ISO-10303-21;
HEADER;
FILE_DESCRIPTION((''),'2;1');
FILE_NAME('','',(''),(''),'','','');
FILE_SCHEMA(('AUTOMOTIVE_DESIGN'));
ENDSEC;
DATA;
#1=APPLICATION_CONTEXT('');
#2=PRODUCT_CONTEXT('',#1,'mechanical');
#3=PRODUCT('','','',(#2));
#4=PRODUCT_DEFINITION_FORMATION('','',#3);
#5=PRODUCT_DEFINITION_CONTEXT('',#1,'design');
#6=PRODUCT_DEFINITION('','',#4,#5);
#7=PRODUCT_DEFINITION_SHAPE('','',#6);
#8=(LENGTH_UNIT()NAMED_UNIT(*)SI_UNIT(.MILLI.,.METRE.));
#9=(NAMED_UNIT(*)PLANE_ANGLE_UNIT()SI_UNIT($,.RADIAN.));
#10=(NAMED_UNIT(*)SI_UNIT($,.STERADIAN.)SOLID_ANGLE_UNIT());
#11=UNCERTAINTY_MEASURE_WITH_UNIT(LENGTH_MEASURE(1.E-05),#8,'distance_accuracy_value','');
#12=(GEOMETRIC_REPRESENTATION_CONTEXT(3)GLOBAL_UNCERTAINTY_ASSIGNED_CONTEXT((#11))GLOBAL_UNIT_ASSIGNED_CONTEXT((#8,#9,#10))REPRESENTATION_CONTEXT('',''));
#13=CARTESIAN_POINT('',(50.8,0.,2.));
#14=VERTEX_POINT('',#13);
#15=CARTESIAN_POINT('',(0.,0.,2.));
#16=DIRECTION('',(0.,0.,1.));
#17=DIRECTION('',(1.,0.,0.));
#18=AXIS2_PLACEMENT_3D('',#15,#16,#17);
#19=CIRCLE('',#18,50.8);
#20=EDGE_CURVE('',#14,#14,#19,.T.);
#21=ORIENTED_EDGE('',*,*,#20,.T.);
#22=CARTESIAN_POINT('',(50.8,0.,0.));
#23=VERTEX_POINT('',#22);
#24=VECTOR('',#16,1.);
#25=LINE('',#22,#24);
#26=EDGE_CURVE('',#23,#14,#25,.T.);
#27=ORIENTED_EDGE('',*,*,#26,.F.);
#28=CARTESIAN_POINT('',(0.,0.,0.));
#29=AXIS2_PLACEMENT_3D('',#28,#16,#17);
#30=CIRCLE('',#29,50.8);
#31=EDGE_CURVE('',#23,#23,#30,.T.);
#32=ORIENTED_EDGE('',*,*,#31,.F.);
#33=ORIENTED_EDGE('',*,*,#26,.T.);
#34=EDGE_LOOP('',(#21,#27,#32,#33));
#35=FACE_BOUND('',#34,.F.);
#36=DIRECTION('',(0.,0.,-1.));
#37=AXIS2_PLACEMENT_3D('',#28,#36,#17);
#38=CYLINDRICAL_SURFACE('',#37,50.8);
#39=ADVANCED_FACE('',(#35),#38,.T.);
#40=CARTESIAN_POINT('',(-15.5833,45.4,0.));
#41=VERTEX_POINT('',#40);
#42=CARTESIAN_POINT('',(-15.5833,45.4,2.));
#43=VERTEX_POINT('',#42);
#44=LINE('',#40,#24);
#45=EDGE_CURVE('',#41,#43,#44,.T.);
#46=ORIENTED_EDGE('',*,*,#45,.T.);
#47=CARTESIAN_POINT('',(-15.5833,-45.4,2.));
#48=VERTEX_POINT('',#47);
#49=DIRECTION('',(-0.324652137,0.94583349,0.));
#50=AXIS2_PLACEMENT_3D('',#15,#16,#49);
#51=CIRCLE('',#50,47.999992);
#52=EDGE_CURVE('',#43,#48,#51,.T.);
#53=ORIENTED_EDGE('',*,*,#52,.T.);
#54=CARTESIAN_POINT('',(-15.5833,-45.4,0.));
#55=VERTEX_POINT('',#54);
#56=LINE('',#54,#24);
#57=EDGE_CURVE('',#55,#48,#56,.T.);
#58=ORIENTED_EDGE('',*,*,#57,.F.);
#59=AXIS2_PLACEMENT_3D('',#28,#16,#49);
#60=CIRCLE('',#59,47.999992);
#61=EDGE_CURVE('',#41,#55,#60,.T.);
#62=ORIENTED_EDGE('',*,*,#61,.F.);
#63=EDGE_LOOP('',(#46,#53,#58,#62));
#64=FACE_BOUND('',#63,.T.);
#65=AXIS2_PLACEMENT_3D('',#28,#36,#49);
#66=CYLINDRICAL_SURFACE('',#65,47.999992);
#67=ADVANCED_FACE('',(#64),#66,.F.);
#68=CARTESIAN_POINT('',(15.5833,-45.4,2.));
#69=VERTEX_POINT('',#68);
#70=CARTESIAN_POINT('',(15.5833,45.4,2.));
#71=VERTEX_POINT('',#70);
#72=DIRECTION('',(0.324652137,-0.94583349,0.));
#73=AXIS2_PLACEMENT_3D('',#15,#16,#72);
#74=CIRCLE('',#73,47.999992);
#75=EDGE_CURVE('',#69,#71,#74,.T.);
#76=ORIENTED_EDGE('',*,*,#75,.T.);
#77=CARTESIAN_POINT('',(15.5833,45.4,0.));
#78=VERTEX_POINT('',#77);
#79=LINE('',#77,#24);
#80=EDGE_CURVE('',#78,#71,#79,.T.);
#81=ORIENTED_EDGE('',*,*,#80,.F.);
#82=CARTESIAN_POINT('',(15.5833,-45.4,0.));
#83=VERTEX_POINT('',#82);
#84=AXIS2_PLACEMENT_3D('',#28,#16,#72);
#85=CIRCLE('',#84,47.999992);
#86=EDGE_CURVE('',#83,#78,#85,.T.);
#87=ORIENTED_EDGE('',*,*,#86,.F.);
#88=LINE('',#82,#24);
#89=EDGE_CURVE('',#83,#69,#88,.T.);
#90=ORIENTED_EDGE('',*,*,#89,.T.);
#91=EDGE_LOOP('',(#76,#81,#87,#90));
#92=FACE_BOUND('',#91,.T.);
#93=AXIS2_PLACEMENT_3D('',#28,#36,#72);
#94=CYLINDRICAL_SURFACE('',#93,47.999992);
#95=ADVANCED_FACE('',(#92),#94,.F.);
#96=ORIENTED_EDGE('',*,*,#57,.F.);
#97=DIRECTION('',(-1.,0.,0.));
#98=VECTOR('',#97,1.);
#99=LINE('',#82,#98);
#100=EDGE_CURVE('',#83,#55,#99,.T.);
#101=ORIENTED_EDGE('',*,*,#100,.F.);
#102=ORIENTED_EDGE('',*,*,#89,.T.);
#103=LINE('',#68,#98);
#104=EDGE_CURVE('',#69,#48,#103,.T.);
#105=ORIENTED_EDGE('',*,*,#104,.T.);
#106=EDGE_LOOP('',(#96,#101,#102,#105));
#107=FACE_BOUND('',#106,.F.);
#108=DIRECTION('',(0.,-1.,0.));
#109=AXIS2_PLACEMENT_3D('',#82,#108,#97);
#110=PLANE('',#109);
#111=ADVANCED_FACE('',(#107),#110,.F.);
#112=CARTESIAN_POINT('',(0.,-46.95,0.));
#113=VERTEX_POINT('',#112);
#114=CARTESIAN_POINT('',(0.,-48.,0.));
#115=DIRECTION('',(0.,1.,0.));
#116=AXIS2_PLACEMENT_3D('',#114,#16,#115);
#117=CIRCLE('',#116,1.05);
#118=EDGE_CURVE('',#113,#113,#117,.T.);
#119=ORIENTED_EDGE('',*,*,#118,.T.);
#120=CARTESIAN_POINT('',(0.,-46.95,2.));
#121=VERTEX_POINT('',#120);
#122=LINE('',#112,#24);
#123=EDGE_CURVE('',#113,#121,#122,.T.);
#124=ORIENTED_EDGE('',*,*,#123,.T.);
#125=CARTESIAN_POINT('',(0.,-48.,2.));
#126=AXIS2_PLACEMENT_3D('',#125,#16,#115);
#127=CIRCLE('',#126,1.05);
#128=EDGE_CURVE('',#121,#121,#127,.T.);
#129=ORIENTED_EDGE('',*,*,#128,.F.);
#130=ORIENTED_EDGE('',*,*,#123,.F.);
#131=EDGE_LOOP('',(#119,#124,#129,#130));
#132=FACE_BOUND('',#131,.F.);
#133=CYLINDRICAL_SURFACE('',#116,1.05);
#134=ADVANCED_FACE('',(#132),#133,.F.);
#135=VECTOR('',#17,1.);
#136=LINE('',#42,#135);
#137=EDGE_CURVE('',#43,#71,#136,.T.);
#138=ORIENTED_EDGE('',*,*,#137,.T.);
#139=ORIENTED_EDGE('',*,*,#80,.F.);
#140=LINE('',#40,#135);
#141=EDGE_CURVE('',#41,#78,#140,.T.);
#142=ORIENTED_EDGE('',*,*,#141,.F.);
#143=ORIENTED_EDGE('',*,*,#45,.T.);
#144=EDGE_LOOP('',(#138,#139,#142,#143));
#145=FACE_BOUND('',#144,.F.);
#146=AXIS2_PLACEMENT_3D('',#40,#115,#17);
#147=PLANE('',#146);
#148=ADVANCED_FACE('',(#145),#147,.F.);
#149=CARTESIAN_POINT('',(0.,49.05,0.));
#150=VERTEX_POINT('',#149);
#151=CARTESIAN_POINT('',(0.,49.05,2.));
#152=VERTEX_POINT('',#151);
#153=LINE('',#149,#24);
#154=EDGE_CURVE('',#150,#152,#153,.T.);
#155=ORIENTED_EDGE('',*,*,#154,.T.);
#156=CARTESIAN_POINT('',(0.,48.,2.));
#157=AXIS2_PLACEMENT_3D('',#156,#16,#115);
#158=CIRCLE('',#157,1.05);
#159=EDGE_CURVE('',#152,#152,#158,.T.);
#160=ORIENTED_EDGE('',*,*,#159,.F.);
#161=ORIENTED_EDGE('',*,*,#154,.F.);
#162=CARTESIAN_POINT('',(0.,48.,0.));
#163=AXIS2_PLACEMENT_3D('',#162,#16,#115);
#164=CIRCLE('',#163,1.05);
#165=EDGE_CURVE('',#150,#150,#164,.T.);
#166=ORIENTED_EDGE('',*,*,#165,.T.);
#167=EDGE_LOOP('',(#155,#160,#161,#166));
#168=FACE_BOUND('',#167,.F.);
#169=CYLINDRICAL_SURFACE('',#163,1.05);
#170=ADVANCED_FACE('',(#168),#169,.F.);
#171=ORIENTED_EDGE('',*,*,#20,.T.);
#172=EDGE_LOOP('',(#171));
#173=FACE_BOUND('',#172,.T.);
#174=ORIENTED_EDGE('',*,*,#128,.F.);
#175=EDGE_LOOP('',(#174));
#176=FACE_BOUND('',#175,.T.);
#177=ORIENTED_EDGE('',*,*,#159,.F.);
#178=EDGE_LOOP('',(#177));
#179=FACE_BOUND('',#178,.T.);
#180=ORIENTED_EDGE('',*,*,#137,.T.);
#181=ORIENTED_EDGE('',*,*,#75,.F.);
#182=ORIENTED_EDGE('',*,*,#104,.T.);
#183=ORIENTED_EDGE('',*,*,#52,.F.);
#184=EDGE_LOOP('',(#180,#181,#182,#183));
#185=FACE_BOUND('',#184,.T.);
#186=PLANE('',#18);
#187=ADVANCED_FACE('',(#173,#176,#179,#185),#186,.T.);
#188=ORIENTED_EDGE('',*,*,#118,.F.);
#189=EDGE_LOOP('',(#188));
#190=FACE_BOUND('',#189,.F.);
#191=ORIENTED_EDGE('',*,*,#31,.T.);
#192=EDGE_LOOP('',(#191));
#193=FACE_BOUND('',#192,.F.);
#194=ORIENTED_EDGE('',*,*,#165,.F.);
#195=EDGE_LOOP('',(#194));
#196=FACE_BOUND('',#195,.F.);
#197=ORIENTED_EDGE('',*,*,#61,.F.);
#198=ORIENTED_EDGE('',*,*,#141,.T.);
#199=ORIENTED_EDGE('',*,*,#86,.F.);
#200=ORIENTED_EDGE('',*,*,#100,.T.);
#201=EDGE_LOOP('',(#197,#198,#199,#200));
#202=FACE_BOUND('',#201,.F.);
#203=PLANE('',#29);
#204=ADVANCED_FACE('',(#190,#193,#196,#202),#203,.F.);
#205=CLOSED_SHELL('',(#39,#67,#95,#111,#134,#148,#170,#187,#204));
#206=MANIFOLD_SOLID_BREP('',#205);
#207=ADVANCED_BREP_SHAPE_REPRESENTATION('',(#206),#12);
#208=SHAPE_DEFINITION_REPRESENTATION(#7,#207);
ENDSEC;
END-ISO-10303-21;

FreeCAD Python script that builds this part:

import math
import FreeCAD as App
import Part
import Sketcher

doc = App.newDocument("Part")
body = doc.addObject("PartDesign::Body", "Body")

# Sketch on XY plane
sketch1 = body.newObject("Sketcher::SketchObject", "Sketch")
sketch1.AttachmentSupport = (doc.getObject("XY_Plane"), [""])
sketch1.MapMode = "FlatFace"
sketch1.addGeometry(Part.Circle(App.Vector(0, 0, 0), App.Vector(0, 0, 1), 51), False)
sketch1.addGeometry(Part.ArcOfCircle(Part.Circle(App.Vector(0, 0, 0), App.Vector(0, 0, 1), 48), math.radians(-71), math.radians(71)), False)
sketch1.addGeometry(Part.LineSegment(App.Vector(16, -45, 0), App.Vector(-16, -45, 0)), False)
sketch1.addGeometry(Part.ArcOfCircle(Part.Circle(App.Vector(0, 0, 0), App.Vector(0, 0, 1), 48), math.radians(109), math.radians(251)), False)
sketch1.addGeometry(Part.LineSegment(App.Vector(-16, 45, 0), App.Vector(16, 45, 0)), False)
sketch1.addConstraint(Sketcher.Constraint("Coincident", 1, 1, 2, 1))
sketch1.addConstraint(Sketcher.Constraint("Coincident", 2, 2, 3, 2))
sketch1.addConstraint(Sketcher.Constraint("Coincident", 3, 1, 4, 1))
sketch1.addConstraint(Sketcher.Constraint("Coincident", 4, 2, 1, 2))
sketch1.addConstraint(Sketcher.Constraint("Horizontal", 2))
sketch1.addConstraint(Sketcher.Constraint("Horizontal", 4))
sketch1.addConstraint(Sketcher.Constraint("Coincident", 0, 3, -1, 1))
sketch1.addConstraint(Sketcher.Constraint("Coincident", 1, 3, -1, 1))
sketch1.addConstraint(Sketcher.Constraint("Coincident", 3, 3, -1, 1))
sketch1.addConstraint(Sketcher.Constraint("Equal", 1, 3))
sketch1.addConstraint(Sketcher.Constraint("Vertical", 2, 2, 3, 1))
sketch1.addConstraint(Sketcher.Constraint("Radius", 1, 48.0))
sketch1.addConstraint(Sketcher.Constraint("Diameter", 0, 101.6))
sketch1.addConstraint(Sketcher.Constraint("DistanceY", 2, 2, 3, 1, 90.8))
pad1 = body.newObject("PartDesign::Pad", "Pad")
pad1.Profile = sketch1
pad1.Length = 2

# Sketch on XY plane
sketch2 = body.newObject("Sketcher::SketchObject", "Sketch001")
sketch2.AttachmentSupport = (doc.getObject("XY_Plane"), [""])
sketch2.MapMode = "FlatFace"
sketch2.addGeometry(Part.Circle(App.Vector(0, -48, 0), App.Vector(0, 0, 1), 1.1), False)
sketch2.addGeometry(Part.Circle(App.Vector(0, 48, 0), App.Vector(0, 0, 1), 1.1), False)
sketch2.addConstraint(Sketcher.Constraint("Equal", 0, 1))
sketch2.addConstraint(Sketcher.Constraint("Symmetric", 0, 3, 1, 3, -1, 1))
sketch2.addConstraint(Sketcher.Constraint("PointOnObject", 0, 3, -2))
sketch2.addConstraint(Sketcher.Constraint("Diameter", 0, 2.1))
sketch2.addConstraint(Sketcher.Constraint("DistanceY", 0, 3, -1, 1, 48.0))
doc.recompute()
hole = body.newObject("PartDesign::Hole", "Hole")
hole.Profile = sketch2
hole.ThreadType = "None"
hole.Diameter = 2.1
hole.DepthType = "ThroughAll"
hole.Reversed = True

doc.recompute()
